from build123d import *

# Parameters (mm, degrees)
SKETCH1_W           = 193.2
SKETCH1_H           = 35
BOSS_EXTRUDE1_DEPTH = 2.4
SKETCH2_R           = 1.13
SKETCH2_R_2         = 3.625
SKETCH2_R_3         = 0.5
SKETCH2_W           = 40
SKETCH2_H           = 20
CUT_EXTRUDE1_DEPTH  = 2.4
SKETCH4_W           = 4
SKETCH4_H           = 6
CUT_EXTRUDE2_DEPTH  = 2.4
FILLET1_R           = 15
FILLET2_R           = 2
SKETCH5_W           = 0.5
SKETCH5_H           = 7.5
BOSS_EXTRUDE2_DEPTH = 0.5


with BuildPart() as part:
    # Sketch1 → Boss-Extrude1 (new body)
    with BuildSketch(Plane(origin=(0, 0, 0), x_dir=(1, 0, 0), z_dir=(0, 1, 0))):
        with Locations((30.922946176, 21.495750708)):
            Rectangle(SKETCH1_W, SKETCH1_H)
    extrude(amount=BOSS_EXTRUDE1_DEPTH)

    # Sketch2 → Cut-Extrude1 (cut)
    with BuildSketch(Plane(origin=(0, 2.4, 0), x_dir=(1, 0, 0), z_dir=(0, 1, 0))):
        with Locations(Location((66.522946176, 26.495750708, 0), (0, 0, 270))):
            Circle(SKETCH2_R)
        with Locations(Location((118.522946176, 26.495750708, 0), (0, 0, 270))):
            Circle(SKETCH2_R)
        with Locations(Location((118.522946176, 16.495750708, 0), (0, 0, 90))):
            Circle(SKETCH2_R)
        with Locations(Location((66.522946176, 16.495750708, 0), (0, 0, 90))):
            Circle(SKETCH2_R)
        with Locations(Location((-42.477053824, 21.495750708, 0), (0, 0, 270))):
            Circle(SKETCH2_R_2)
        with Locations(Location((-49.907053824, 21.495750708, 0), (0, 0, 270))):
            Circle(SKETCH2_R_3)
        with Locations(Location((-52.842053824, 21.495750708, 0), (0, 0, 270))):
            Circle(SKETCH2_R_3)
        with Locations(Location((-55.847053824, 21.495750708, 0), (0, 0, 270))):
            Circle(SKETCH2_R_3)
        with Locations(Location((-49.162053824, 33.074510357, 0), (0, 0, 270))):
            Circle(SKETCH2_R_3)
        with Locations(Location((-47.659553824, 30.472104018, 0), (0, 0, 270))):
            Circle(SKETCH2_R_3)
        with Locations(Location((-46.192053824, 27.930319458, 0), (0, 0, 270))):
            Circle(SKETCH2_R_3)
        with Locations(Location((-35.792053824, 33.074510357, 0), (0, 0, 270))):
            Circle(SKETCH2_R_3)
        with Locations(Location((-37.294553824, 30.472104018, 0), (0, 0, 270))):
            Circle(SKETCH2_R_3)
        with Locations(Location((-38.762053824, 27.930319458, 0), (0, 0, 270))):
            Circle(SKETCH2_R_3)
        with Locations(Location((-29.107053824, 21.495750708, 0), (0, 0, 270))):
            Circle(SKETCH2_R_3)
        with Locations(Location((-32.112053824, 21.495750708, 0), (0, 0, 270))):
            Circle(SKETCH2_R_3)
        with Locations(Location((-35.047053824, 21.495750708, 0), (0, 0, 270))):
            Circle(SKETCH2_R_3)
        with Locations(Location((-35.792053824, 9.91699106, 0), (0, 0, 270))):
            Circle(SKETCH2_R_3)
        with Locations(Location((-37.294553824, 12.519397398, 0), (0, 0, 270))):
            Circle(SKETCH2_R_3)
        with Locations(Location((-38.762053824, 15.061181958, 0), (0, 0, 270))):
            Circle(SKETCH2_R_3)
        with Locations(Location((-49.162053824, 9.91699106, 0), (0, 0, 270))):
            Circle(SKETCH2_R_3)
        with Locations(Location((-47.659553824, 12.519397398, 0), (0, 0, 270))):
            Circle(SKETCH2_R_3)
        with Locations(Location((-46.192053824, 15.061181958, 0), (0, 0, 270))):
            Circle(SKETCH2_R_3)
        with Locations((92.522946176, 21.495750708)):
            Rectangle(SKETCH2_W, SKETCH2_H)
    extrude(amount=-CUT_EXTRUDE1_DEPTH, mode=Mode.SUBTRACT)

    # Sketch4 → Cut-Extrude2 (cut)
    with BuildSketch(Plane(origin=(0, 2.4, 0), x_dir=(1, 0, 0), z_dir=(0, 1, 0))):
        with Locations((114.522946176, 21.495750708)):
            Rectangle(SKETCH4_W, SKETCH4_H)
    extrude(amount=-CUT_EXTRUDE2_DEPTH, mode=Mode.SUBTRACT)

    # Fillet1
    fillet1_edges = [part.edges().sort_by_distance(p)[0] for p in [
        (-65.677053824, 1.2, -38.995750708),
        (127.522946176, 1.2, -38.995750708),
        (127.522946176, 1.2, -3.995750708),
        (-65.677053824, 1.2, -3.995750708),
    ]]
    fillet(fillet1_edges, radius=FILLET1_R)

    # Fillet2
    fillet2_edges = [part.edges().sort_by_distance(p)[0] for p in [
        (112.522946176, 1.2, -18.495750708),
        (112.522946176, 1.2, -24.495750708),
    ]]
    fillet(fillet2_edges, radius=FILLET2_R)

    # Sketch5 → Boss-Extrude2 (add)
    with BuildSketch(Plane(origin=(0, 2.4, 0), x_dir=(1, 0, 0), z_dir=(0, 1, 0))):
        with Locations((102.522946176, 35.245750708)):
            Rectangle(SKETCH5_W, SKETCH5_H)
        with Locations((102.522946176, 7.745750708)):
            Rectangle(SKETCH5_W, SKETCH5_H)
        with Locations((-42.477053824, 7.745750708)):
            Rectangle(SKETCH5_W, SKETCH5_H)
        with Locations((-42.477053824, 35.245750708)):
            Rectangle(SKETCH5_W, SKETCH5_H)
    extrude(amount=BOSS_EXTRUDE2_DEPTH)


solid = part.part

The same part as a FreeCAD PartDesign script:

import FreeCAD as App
import Part
import Sketcher

V = App.Vector
Q = App.Units.Quantity


def edges_at(feature, points):
    """Names of the edges that pass closest to the given points."""
    edges = feature.Shape.Edges
    near = lambda p: min(range(len(edges)), key=lambda i: edges[i].distToShape(Part.Vertex(*p))[0])
    return sorted({f"Edge{near(p) + 1}" for p in points})

doc = App.newDocument("Part")
body = doc.addObject("PartDesign::Body", "Body")

sketch1 = doc.addObject("Sketcher::SketchObject", "Sketch")
body.addObject(sketch1)
sketch1.AttachmentSupport = (doc.XZ_Plane, [""])
sketch1.MapMode = "FlatFace"
sketch1.addGeometry(Part.LineSegment(V(-66, -39, 0), V(-66, -4, 0)), False)
sketch1.addGeometry(Part.LineSegment(V(-66, -4, 0), V(128, -4, 0)), False)
sketch1.addGeometry(Part.LineSegment(V(128, -4, 0), V(128, -39, 0)), False)
sketch1.addGeometry(Part.LineSegment(V(128, -39, 0), V(-66, -39, 0)), False)
sketch1.addConstraint(Sketcher.Constraint("Coincident", 0, 2, 1, 1))
sketch1.addConstraint(Sketcher.Constraint("Coincident", 1, 2, 2, 1))
sketch1.addConstraint(Sketcher.Constraint("Coincident", 2, 2, 3, 1))
sketch1.addConstraint(Sketcher.Constraint("Coincident", 3, 2, 0, 1))
sketch1.addConstraint(Sketcher.Constraint("Vertical", 0))
sketch1.addConstraint(Sketcher.Constraint("Horizontal", 1))
sketch1.addConstraint(Sketcher.Constraint("Vertical", 2))
sketch1.addConstraint(Sketcher.Constraint("Horizontal", 3))
sketch1.addConstraint(Sketcher.Constraint("DistanceY", 0, 1, 0, 2, Q("35 mm")))
sketch1.addConstraint(Sketcher.Constraint("DistanceX", 1, 1, 1, 2, Q("193.2 mm")))
sketch1.addConstraint(Sketcher.Constraint("DistanceY", 0, 2, -1, 1, Q("3.995751 mm")))
sketch1.addConstraint(Sketcher.Constraint("DistanceX", 0, 2, -1, 1, Q("65.677054 mm")))
pad1 = doc.addObject("PartDesign::Pad", "Pad")
body.addObject(pad1)
pad1.Profile = sketch1
pad1.Length = 2.4
pad1.Reversed = True

sketch2 = doc.addObject("Sketcher::SketchObject", "Sketch001")
body.addObject(sketch2)
sketch2.AttachmentSupport = (doc.XZ_Plane, [""])
sketch2.MapMode = "FlatFace"
sketch2.AttachmentOffset = App.Placement(V(0, 0, -2.4), App.Rotation())
sketch2.addGeometry(Part.Circle(V(66.5, -26.5, 0), V(0, 0, 1), 1.1), False)
sketch2.addGeometry(Part.Circle(V(118.5, -26.5, 0), V(0, 0, 1), 1.1), False)
sketch2.addGeometry(Part.Circle(V(118.5, -16.5, 0), V(0, 0, 1), 1.1), False)
sketch2.addGeometry(Part.Circle(V(66.5, -16.5, 0), V(0, 0, 1), 1.1), False)
sketch2.addGeometry(Part.Circle(V(-42.5, -21.5, 0), V(0, 0, 1), 3.6), False)
sketch2.addGeometry(Part.Circle(V(-49.9, -21.5, 0), V(0, 0, 1), 0.5), False)
sketch2.addGeometry(Part.Circle(V(-52.8, -21.5, 0), V(0, 0, 1), 0.5), False)
sketch2.addGeometry(Part.Circle(V(-55.8, -21.5, 0), V(0, 0, 1), 0.5), False)
sketch2.addGeometry(Part.Circle(V(-49.2, -33.1, 0), V(0, 0, 1), 0.5), False)
sketch2.addGeometry(Part.Circle(V(-47.7, -30.5, 0), V(0, 0, 1), 0.5), False)
sketch2.addGeometry(Part.Circle(V(-46.2, -27.9, 0), V(0, 0, 1), 0.5), False)
sketch2.addGeometry(Part.Circle(V(-35.8, -33.1, 0), V(0, 0, 1), 0.5), False)
sketch2.addGeometry(Part.Circle(V(-37.3, -30.5, 0), V(0, 0, 1), 0.5), False)
sketch2.addGeometry(Part.Circle(V(-38.8, -27.9, 0), V(0, 0, 1), 0.5), False)
sketch2.addGeometry(Part.Circle(V(-29.1, -21.5, 0), V(0, 0, 1), 0.5), False)
sketch2.addGeometry(Part.Circle(V(-32.1, -21.5, 0), V(0, 0, 1), 0.5), False)
sketch2.addGeometry(Part.Circle(V(-35, -21.5, 0), V(0, 0, 1), 0.5), False)
sketch2.addGeometry(Part.Circle(V(-35.8, -9.9, 0), V(0, 0, 1), 0.5), False)
sketch2.addGeometry(Part.Circle(V(-37.3, -12.5, 0), V(0, 0, 1), 0.5), False)
sketch2.addGeometry(Part.Circle(V(-38.8, -15.1, 0), V(0, 0, 1), 0.5), False)
sketch2.addGeometry(Part.Circle(V(-49.2, -9.9, 0), V(0, 0, 1), 0.5), False)
sketch2.addGeometry(Part.Circle(V(-47.7, -12.5, 0), V(0, 0, 1), 0.5), False)
sketch2.addGeometry(Part.Circle(V(-46.2, -15.1, 0), V(0, 0, 1), 0.5), False)
sketch2.addGeometry(Part.LineSegment(V(72.5, -31.5, 0), V(72.5, -11.5, 0)), False)
sketch2.addGeometry(Part.LineSegment(V(72.5, -11.5, 0), V(112.5, -11.5, 0)), False)
sketch2.addGeometry(Part.LineSegment(V(112.5, -11.5, 0), V(112.5, -31.5, 0)), False)
sketch2.addGeometry(Part.LineSegment(V(112.5, -31.5, 0), V(72.5, -31.5, 0)), False)
sketch2.addConstraint(Sketcher.Constraint("Coincident", 23, 2, 24, 1))
sketch2.addConstraint(Sketcher.Constraint("Coincident", 24, 2, 25, 1))
sketch2.addConstraint(Sketcher.Constraint("Coincident", 25, 2, 26, 1))
sketch2.addConstraint(Sketcher.Constraint("Coincident", 26, 2, 23, 1))
sketch2.addConstraint(Sketcher.Constraint("Vertical", 23))
sketch2.addConstraint(Sketcher.Constraint("Horizontal", 24))
sketch2.addConstraint(Sketcher.Constraint("Vertical", 25))
sketch2.addConstraint(Sketcher.Constraint("Horizontal", 26))
sketch2.addConstraint(Sketcher.Constraint("Equal", 0, 1))
sketch2.addConstraint(Sketcher.Constraint("Equal", 1, 2))
sketch2.addConstraint(Sketcher.Constraint("Equal", 2, 3))
sketch2.addConstraint(Sketcher.Constraint("Equal", 5, 6))
sketch2.addConstraint(Sketcher.Constraint("Equal", 6, 7))
sketch2.addConstraint(Sketcher.Constraint("Equal", 7, 8))
sketch2.addConstraint(Sketcher.Constraint("Equal", 8, 9))
sketch2.addConstraint(Sketcher.Constraint("Equal", 9, 10))
sketch2.addConstraint(Sketcher.Constraint("Equal", 10, 11))
sketch2.addConstraint(Sketcher.Constraint("Equal", 11, 12))
sketch2.addConstraint(Sketcher.Constraint("Equal", 12, 13))
sketch2.addConstraint(Sketcher.Constraint("Equal", 13, 14))
sketch2.addConstraint(Sketcher.Constraint("Equal", 14, 15))
sketch2.addConstraint(Sketcher.Constraint("Equal", 15, 16))
sketch2.addConstraint(Sketcher.Constraint("Equal", 16, 17))
sketch2.addConstraint(Sketcher.Constraint("Equal", 17, 18))
sketch2.addConstraint(Sketcher.Constraint("Equal", 18, 19))
sketch2.addConstraint(Sketcher.Constraint("Equal", 19, 20))
sketch2.addConstraint(Sketcher.Constraint("Equal", 20, 21))
sketch2.addConstraint(Sketcher.Constraint("Equal", 21, 22))
sketch2.addConstraint(Sketcher.Constraint("Horizontal", 0, 3, 1, 3))
sketch2.addConstraint(Sketcher.Constraint("Horizontal", 2, 3, 3, 3))
sketch2.addConstraint(Sketcher.Constraint("Horizontal", 4, 3, 5, 3))
sketch2.addConstraint(Sketcher.Constraint("Horizontal", 5, 3, 6, 3))
sketch2.addConstraint(Sketcher.Constraint("Horizontal", 6, 3, 7, 3))
sketch2.addConstraint(Sketcher.Constraint("Horizontal", 8, 3, 11, 3))
sketch2.addConstraint(Sketcher.Constraint("Horizontal", 9, 3, 12, 3))
sketch2.addConstraint(Sketcher.Constraint("Horizontal", 10, 3, 13, 3))
sketch2.addConstraint(Sketcher.Constraint("Horizontal", 7, 3, 14, 3))
sketch2.addConstraint(Sketcher.Constraint("Horizontal", 14, 3, 15, 3))
sketch2.addConstraint(Sketcher.Constraint("Horizontal", 15, 3, 16, 3))
sketch2.addConstraint(Sketcher.Constraint("Horizontal", 17, 3, 20, 3))
sketch2.addConstraint(Sketcher.Constraint("Horizontal", 18, 3, 21, 3))
sketch2.addConstraint(Sketcher.Constraint("Horizontal", 19, 3, 22, 3))
sketch2.addConstraint(Sketcher.Constraint("Vertical", 1, 3, 2, 3))
sketch2.addConstraint(Sketcher.Constraint("Vertical", 0, 3, 3, 3))
sketch2.addConstraint(Sketcher.Constraint("Vertical", 11, 3, 17, 3))
sketch2.addConstraint(Sketcher.Constraint("Vertical", 12, 3, 18, 3))
sketch2.addConstraint(Sketcher.Constraint("Vertical", 13, 3, 19, 3))
sketch2.addConstraint(Sketcher.Constraint("Vertical", 8, 3, 20, 3))
sketch2.addConstraint(Sketcher.Constraint("Vertical", 9, 3, 21, 3))
sketch2.addConstraint(Sketcher.Constraint("Vertical", 10, 3, 22, 3))
sketch2.addConstraint(Sketcher.Constraint("Diameter", 5, Q("1 mm")))
sketch2.addConstraint(Sketcher.Constraint("Diameter", 0, Q("2.26 mm")))
sketch2.addConstraint(Sketcher.Constraint("Diameter", 4, Q("7.25 mm")))
sketch2.addConstraint(Sketcher.Constraint("DistanceX", 24, 1, 24, 2, Q("40 mm")))
sketch2.addConstraint(Sketcher.Constraint("DistanceY", 23, 1, 23, 2, Q("20 mm")))
sketch2.addConstraint(Sketcher.Constraint("DistanceX", 0, 3, 1, 3, Q("52 mm")))
sketch2.addConstraint(Sketcher.Constraint("DistanceY", 1, 3, 2, 3, Q("10 mm")))
sketch2.addConstraint(Sketcher.Constraint("DistanceX", 4, 3, 0, 3, Q("109 mm")))
sketch2.addConstraint(Sketcher.Constraint("DistanceY", 0, 3, 4, 3, Q("5 mm")))
sketch2.addConstraint(Sketcher.Constraint("DistanceX", 3, 3, 23, 2, Q("6 mm")))
sketch2.addConstraint(Sketcher.Constraint("DistanceY", 3, 3, 23, 2, Q("5 mm")))
sketch2.addConstraint(Sketcher.Constraint("DistanceX", 10, 3, 11, 3, Q("10.4 mm")))
sketch2.addConstraint(Sketcher.Constraint("DistanceX", 20, 3, 19, 3, Q("10.4 mm")))
sketch2.addConstraint(Sketcher.Constraint("DistanceX", 5, 3, 4, 3, Q("7.43 mm")))
sketch2.addConstraint(Sketcher.Constraint("DistanceX", 7, 3, 5, 3, Q("5.94 mm")))
sketch2.addConstraint(Sketcher.Constraint("DistanceX", 6, 3, 8, 3, Q("3.68 mm")))
sketch2.addConstraint(Sketcher.Constraint("DistanceX", 8, 3, 10, 3, Q("2.97 mm")))
sketch2.addConstraint(Sketcher.Constraint("DistanceX", 4, 3, 14, 3, Q("13.37 mm")))
sketch2.addConstraint(Sketcher.Constraint("DistanceX", 13, 3, 15, 3, Q("6.65 mm")))
sketch2.addConstraint(Sketcher.Constraint("DistanceX", 16, 3, 14, 3, Q("5.94 mm")))
sketch2.addConstraint(Sketcher.Constraint("DistanceX", 6, 3, 5, 3, Q("2.935 mm")))
sketch2.addConstraint(Sketcher.Constraint("DistanceX", 9, 3, 12, 3, Q("10.365 mm")))
sketch2.addConstraint(Sketcher.Constraint("DistanceX", 8, 3, 9, 3, Q("1.5025 mm")))
sketch2.addConstraint(Sketcher.Constraint("DistanceY", 0, 3, -1, 1, Q("26.495751 mm")))
sketch2.addConstraint(Sketcher.Constraint("DistanceY", 8, 3, -1, 1, Q("33.07451 mm")))
sketch2.addConstraint(Sketcher.Constraint("DistanceY", 10, 3, -1, 1, Q("27.930319 mm")))
sketch2.addConstraint(Sketcher.Constraint("DistanceY", 17, 3, -1, 1, Q("9.916991 mm")))
sketch2.addConstraint(Sketcher.Constraint("DistanceY", 19, 3, -1, 1, Q("15.061182 mm")))
sketch2.addConstraint(Sketcher.Constraint("DistanceX", -1, 1, 0, 3, Q("66.522946 mm")))
sketch2.addConstraint(Sketcher.Constraint("DistanceY", 9, 3, -1, 1, Q("30.472104 mm")))
sketch2.addConstraint(Sketcher.Constraint("DistanceY", 18, 3, -1, 1, Q("12.519397 mm")))
pocket1 = doc.addObject("PartDesign::Pocket", "Pocket")
body.addObject(pocket1)
pocket1.Profile = sketch2
pocket1.Length = 2.4
pocket1.Reversed = True

sketch3 = doc.addObject("Sketcher::SketchObject", "Sketch002")
body.addObject(sketch3)
sketch3.AttachmentSupport = (doc.XZ_Plane, [""])
sketch3.MapMode = "FlatFace"
sketch3.AttachmentOffset = App.Placement(V(0, 0, -2.4), App.Rotation())
sketch3.addGeometry(Part.LineSegment(V(112.5, -24.5, 0), V(112.5, -18.5, 0)), False)
sketch3.addGeometry(Part.LineSegment(V(112.5, -18.5, 0), V(116.5, -18.5, 0)), False)
sketch3.addGeometry(Part.LineSegment(V(116.5, -18.5, 0), V(116.5, -24.5, 0)), False)
sketch3.addGeometry(Part.LineSegment(V(116.5, -24.5, 0), V(112.5, -24.5, 0)), False)
sketch3.addConstraint(Sketcher.Constraint("Coincident", 0, 2, 1, 1))
sketch3.addConstraint(Sketcher.Constraint("Coincident", 1, 2, 2, 1))
sketch3.addConstraint(Sketcher.Constraint("Coincident", 2, 2, 3, 1))
sketch3.addConstraint(Sketcher.Constraint("Coincident", 3, 2, 0, 1))
sketch3.addConstraint(Sketcher.Constraint("Vertical", 0))
sketch3.addConstraint(Sketcher.Constraint("Horizontal", 1))
sketch3.addConstraint(Sketcher.Constraint("Vertical", 2))
sketch3.addConstraint(Sketcher.Constraint("Horizontal", 3))
sketch3.addConstraint(Sketcher.Constraint("DistanceX", 1, 1, 1, 2, Q("4 mm")))
sketch3.addConstraint(Sketcher.Constraint("DistanceY", 0, 1, 0, 2, Q("6 mm")))
sketch3.addConstraint(Sketcher.Constraint("DistanceY", 0, 2, -1, 1, Q("18.495751 mm")))
sketch3.addConstraint(Sketcher.Constraint("DistanceX", -1, 1, 0, 2, Q("112.522946 mm")))
pocket2 = doc.addObject("PartDesign::Pocket", "Pocket001")
body.addObject(pocket2)
pocket2.Profile = sketch3
pocket2.Length = 2.4
pocket2.Reversed = True
doc.recompute()

fillet = doc.addObject("PartDesign::Fillet", "Fillet")
body.addObject(fillet)
fillet.Base = (pocket2, edges_at(pocket2, [
    (-65.677, 1.2, -38.996),
    (127.523, 1.2, -38.996),
    (127.523, 1.2, -3.996),
    (-65.677, 1.2, -3.996),
]))
fillet.Radius = 15
doc.recompute()

fillet2 = doc.addObject("PartDesign::Fillet", "Fillet001")
body.addObject(fillet2)
fillet2.Base = (fillet, edges_at(fillet, [(112.523, 1.2, -18.496), (112.523, 1.2, -24.496)]))
fillet2.Radius = 2

sketch4 = doc.addObject("Sketcher::SketchObject", "Sketch003")
body.addObject(sketch4)
sketch4.AttachmentSupport = (doc.XZ_Plane, [""])
sketch4.MapMode = "FlatFace"
sketch4.AttachmentOffset = App.Placement(V(0, 0, -2.4), App.Rotation())
sketch4.addGeometry(Part.LineSegment(V(102.3, -39, 0), V(102.3, -31.5, 0)), False)
sketch4.addGeometry(Part.LineSegment(V(102.3, -31.5, 0), V(102.8, -31.5, 0)), False)
sketch4.addGeometry(Part.LineSegment(V(102.8, -31.5, 0), V(102.8, -39, 0)), False)
sketch4.addGeometry(Part.LineSegment(V(102.8, -39, 0), V(102.3, -39, 0)), False)
sketch4.addGeometry(Part.LineSegment(V(102.3, -11.5, 0), V(102.3, -4, 0)), False)
sketch4.addGeometry(Part.LineSegment(V(102.3, -4, 0), V(102.8, -4, 0)), False)
sketch4.addGeometry(Part.LineSegment(V(102.8, -4, 0), V(102.8, -11.5, 0)), False)
sketch4.addGeometry(Part.LineSegment(V(102.8, -11.5, 0), V(102.3, -11.5, 0)), False)
sketch4.addGeometry(Part.LineSegment(V(-42.7, -11.5, 0), V(-42.7, -4, 0)), False)
sketch4.addGeometry(Part.LineSegment(V(-42.7, -4, 0), V(-42.2, -4, 0)), False)
sketch4.addGeometry(Part.LineSegment(V(-42.2, -4, 0), V(-42.2, -11.5, 0)), False)
sketch4.addGeometry(Part.LineSegment(V(-42.2, -11.5, 0), V(-42.7, -11.5, 0)), False)
sketch4.addGeometry(Part.LineSegment(V(-42.7, -39, 0), V(-42.7, -31.5, 0)), False)
sketch4.addGeometry(Part.LineSegment(V(-42.7, -31.5, 0), V(-42.2, -31.5, 0)), False)
sketch4.addGeometry(Part.LineSegment(V(-42.2, -31.5, 0), V(-42.2, -39, 0)), False)
sketch4.addGeometry(Part.LineSegment(V(-42.2, -39, 0), V(-42.7, -39, 0)), False)
sketch4.addConstraint(Sketcher.Constraint("Coincident", 0, 2, 1, 1))
sketch4.addConstraint(Sketcher.Constraint("Coincident", 1, 2, 2, 1))
sketch4.addConstraint(Sketcher.Constraint("Coincident", 2, 2, 3, 1))
sketch4.addConstraint(Sketcher.Constraint("Coincident", 3, 2, 0, 1))
sketch4.addConstraint(Sketcher.Constraint("Coincident", 4, 2, 5, 1))
sketch4.addConstraint(Sketcher.Constraint("Coincident", 5, 2, 6, 1))
sketch4.addConstraint(Sketcher.Constraint("Coincident", 6, 2, 7, 1))
sketch4.addConstraint(Sketcher.Constraint("Coincident", 7, 2, 4, 1))
sketch4.addConstraint(Sketcher.Constraint("Coincident", 8, 2, 9, 1))
sketch4.addConstraint(Sketcher.Constraint("Coincident", 9, 2, 10, 1))
sketch4.addConstraint(Sketcher.Constraint("Coincident", 10, 2, 11, 1))
sketch4.addConstraint(Sketcher.Constraint("Coincident", 11, 2, 8, 1))
sketch4.addConstraint(Sketcher.Constraint("Coincident", 12, 2, 13, 1))
sketch4.addConstraint(Sketcher.Constraint("Coincident", 13, 2, 14, 1))
sketch4.addConstraint(Sketcher.Constraint("Coincident", 14, 2, 15, 1))
sketch4.addConstraint(Sketcher.Constraint("Coincident", 15, 2, 12, 1))
sketch4.addConstraint(Sketcher.Constraint("Vertical", 0))
sketch4.addConstraint(Sketcher.Constraint("Horizontal", 1))
sketch4.addConstraint(Sketcher.Constraint("Vertical", 2))
sketch4.addConstraint(Sketcher.Constraint("Horizontal", 3))
sketch4.addConstraint(Sketcher.Constraint("Vertical", 4))
sketch4.addConstraint(Sketcher.Constraint("Horizontal", 5))
sketch4.addConstraint(Sketcher.Constraint("Vertical", 6))
sketch4.addConstraint(Sketcher.Constraint("Horizontal", 7))
sketch4.addConstraint(Sketcher.Constraint("Vertical", 8))
sketch4.addConstraint(Sketcher.Constraint("Horizontal", 9))
sketch4.addConstraint(Sketcher.Constraint("Vertical", 10))
sketch4.addConstraint(Sketcher.Constraint("Horizontal", 11))
sketch4.addConstraint(Sketcher.Constraint("Vertical", 12))
sketch4.addConstraint(Sketcher.Constraint("Horizontal", 13))
sketch4.addConstraint(Sketcher.Constraint("Vertical", 14))
sketch4.addConstraint(Sketcher.Constraint("Horizontal", 15))
sketch4.addConstraint(Sketcher.Constraint("Horizontal", 5, 2, 8, 2))
sketch4.addConstraint(Sketcher.Constraint("Horizontal", 7, 2, 10, 2))
sketch4.addConstraint(Sketcher.Constraint("Horizontal", 1, 2, 12, 2))
sketch4.addConstraint(Sketcher.Constraint("Horizontal", 3, 2, 14, 2))
sketch4.addConstraint(Sketcher.Constraint("Vertical", 3, 2, 4, 2))
sketch4.addConstraint(Sketcher.Constraint("Vertical", 2, 2, 5, 2))
sketch4.addConstraint(Sketcher.Constraint("Vertical", 11, 2, 12, 2))
sketch4.addConstraint(Sketcher.Constraint("Vertical", 10, 2, 13, 2))
sketch4.addConstraint(Sketcher.Constraint("Equal", 7, 9))
sketch4.addConstraint(Sketcher.Constraint("Equal", 2, 4))
sketch4.addConstraint(Sketcher.Constraint("DistanceX", 1, 1, 1, 2, Q("0.5 mm")))
sketch4.addConstraint(Sketcher.Constraint("DistanceY", 0, 1, 0, 2, Q("7.5 mm")))
sketch4.addConstraint(Sketcher.Constraint("DistanceY", 3, 2, 4, 2, Q("35 mm")))
sketch4.addConstraint(Sketcher.Constraint("DistanceX", 8, 2, 4, 2, Q("145 mm")))
sketch4.addConstraint(Sketcher.Constraint("DistanceY", 0, 2, -1, 1, Q("31.495751 mm")))
sketch4.addConstraint(Sketcher.Constraint("DistanceX", -1, 1, 0, 2, Q("102.272946 mm")))
pad2 = doc.addObject("PartDesign::Pad", "Pad001")
body.addObject(pad2)
pad2.Profile = sketch4
pad2.Length = 0.5
pad2.Reversed = True

doc.recompute()
